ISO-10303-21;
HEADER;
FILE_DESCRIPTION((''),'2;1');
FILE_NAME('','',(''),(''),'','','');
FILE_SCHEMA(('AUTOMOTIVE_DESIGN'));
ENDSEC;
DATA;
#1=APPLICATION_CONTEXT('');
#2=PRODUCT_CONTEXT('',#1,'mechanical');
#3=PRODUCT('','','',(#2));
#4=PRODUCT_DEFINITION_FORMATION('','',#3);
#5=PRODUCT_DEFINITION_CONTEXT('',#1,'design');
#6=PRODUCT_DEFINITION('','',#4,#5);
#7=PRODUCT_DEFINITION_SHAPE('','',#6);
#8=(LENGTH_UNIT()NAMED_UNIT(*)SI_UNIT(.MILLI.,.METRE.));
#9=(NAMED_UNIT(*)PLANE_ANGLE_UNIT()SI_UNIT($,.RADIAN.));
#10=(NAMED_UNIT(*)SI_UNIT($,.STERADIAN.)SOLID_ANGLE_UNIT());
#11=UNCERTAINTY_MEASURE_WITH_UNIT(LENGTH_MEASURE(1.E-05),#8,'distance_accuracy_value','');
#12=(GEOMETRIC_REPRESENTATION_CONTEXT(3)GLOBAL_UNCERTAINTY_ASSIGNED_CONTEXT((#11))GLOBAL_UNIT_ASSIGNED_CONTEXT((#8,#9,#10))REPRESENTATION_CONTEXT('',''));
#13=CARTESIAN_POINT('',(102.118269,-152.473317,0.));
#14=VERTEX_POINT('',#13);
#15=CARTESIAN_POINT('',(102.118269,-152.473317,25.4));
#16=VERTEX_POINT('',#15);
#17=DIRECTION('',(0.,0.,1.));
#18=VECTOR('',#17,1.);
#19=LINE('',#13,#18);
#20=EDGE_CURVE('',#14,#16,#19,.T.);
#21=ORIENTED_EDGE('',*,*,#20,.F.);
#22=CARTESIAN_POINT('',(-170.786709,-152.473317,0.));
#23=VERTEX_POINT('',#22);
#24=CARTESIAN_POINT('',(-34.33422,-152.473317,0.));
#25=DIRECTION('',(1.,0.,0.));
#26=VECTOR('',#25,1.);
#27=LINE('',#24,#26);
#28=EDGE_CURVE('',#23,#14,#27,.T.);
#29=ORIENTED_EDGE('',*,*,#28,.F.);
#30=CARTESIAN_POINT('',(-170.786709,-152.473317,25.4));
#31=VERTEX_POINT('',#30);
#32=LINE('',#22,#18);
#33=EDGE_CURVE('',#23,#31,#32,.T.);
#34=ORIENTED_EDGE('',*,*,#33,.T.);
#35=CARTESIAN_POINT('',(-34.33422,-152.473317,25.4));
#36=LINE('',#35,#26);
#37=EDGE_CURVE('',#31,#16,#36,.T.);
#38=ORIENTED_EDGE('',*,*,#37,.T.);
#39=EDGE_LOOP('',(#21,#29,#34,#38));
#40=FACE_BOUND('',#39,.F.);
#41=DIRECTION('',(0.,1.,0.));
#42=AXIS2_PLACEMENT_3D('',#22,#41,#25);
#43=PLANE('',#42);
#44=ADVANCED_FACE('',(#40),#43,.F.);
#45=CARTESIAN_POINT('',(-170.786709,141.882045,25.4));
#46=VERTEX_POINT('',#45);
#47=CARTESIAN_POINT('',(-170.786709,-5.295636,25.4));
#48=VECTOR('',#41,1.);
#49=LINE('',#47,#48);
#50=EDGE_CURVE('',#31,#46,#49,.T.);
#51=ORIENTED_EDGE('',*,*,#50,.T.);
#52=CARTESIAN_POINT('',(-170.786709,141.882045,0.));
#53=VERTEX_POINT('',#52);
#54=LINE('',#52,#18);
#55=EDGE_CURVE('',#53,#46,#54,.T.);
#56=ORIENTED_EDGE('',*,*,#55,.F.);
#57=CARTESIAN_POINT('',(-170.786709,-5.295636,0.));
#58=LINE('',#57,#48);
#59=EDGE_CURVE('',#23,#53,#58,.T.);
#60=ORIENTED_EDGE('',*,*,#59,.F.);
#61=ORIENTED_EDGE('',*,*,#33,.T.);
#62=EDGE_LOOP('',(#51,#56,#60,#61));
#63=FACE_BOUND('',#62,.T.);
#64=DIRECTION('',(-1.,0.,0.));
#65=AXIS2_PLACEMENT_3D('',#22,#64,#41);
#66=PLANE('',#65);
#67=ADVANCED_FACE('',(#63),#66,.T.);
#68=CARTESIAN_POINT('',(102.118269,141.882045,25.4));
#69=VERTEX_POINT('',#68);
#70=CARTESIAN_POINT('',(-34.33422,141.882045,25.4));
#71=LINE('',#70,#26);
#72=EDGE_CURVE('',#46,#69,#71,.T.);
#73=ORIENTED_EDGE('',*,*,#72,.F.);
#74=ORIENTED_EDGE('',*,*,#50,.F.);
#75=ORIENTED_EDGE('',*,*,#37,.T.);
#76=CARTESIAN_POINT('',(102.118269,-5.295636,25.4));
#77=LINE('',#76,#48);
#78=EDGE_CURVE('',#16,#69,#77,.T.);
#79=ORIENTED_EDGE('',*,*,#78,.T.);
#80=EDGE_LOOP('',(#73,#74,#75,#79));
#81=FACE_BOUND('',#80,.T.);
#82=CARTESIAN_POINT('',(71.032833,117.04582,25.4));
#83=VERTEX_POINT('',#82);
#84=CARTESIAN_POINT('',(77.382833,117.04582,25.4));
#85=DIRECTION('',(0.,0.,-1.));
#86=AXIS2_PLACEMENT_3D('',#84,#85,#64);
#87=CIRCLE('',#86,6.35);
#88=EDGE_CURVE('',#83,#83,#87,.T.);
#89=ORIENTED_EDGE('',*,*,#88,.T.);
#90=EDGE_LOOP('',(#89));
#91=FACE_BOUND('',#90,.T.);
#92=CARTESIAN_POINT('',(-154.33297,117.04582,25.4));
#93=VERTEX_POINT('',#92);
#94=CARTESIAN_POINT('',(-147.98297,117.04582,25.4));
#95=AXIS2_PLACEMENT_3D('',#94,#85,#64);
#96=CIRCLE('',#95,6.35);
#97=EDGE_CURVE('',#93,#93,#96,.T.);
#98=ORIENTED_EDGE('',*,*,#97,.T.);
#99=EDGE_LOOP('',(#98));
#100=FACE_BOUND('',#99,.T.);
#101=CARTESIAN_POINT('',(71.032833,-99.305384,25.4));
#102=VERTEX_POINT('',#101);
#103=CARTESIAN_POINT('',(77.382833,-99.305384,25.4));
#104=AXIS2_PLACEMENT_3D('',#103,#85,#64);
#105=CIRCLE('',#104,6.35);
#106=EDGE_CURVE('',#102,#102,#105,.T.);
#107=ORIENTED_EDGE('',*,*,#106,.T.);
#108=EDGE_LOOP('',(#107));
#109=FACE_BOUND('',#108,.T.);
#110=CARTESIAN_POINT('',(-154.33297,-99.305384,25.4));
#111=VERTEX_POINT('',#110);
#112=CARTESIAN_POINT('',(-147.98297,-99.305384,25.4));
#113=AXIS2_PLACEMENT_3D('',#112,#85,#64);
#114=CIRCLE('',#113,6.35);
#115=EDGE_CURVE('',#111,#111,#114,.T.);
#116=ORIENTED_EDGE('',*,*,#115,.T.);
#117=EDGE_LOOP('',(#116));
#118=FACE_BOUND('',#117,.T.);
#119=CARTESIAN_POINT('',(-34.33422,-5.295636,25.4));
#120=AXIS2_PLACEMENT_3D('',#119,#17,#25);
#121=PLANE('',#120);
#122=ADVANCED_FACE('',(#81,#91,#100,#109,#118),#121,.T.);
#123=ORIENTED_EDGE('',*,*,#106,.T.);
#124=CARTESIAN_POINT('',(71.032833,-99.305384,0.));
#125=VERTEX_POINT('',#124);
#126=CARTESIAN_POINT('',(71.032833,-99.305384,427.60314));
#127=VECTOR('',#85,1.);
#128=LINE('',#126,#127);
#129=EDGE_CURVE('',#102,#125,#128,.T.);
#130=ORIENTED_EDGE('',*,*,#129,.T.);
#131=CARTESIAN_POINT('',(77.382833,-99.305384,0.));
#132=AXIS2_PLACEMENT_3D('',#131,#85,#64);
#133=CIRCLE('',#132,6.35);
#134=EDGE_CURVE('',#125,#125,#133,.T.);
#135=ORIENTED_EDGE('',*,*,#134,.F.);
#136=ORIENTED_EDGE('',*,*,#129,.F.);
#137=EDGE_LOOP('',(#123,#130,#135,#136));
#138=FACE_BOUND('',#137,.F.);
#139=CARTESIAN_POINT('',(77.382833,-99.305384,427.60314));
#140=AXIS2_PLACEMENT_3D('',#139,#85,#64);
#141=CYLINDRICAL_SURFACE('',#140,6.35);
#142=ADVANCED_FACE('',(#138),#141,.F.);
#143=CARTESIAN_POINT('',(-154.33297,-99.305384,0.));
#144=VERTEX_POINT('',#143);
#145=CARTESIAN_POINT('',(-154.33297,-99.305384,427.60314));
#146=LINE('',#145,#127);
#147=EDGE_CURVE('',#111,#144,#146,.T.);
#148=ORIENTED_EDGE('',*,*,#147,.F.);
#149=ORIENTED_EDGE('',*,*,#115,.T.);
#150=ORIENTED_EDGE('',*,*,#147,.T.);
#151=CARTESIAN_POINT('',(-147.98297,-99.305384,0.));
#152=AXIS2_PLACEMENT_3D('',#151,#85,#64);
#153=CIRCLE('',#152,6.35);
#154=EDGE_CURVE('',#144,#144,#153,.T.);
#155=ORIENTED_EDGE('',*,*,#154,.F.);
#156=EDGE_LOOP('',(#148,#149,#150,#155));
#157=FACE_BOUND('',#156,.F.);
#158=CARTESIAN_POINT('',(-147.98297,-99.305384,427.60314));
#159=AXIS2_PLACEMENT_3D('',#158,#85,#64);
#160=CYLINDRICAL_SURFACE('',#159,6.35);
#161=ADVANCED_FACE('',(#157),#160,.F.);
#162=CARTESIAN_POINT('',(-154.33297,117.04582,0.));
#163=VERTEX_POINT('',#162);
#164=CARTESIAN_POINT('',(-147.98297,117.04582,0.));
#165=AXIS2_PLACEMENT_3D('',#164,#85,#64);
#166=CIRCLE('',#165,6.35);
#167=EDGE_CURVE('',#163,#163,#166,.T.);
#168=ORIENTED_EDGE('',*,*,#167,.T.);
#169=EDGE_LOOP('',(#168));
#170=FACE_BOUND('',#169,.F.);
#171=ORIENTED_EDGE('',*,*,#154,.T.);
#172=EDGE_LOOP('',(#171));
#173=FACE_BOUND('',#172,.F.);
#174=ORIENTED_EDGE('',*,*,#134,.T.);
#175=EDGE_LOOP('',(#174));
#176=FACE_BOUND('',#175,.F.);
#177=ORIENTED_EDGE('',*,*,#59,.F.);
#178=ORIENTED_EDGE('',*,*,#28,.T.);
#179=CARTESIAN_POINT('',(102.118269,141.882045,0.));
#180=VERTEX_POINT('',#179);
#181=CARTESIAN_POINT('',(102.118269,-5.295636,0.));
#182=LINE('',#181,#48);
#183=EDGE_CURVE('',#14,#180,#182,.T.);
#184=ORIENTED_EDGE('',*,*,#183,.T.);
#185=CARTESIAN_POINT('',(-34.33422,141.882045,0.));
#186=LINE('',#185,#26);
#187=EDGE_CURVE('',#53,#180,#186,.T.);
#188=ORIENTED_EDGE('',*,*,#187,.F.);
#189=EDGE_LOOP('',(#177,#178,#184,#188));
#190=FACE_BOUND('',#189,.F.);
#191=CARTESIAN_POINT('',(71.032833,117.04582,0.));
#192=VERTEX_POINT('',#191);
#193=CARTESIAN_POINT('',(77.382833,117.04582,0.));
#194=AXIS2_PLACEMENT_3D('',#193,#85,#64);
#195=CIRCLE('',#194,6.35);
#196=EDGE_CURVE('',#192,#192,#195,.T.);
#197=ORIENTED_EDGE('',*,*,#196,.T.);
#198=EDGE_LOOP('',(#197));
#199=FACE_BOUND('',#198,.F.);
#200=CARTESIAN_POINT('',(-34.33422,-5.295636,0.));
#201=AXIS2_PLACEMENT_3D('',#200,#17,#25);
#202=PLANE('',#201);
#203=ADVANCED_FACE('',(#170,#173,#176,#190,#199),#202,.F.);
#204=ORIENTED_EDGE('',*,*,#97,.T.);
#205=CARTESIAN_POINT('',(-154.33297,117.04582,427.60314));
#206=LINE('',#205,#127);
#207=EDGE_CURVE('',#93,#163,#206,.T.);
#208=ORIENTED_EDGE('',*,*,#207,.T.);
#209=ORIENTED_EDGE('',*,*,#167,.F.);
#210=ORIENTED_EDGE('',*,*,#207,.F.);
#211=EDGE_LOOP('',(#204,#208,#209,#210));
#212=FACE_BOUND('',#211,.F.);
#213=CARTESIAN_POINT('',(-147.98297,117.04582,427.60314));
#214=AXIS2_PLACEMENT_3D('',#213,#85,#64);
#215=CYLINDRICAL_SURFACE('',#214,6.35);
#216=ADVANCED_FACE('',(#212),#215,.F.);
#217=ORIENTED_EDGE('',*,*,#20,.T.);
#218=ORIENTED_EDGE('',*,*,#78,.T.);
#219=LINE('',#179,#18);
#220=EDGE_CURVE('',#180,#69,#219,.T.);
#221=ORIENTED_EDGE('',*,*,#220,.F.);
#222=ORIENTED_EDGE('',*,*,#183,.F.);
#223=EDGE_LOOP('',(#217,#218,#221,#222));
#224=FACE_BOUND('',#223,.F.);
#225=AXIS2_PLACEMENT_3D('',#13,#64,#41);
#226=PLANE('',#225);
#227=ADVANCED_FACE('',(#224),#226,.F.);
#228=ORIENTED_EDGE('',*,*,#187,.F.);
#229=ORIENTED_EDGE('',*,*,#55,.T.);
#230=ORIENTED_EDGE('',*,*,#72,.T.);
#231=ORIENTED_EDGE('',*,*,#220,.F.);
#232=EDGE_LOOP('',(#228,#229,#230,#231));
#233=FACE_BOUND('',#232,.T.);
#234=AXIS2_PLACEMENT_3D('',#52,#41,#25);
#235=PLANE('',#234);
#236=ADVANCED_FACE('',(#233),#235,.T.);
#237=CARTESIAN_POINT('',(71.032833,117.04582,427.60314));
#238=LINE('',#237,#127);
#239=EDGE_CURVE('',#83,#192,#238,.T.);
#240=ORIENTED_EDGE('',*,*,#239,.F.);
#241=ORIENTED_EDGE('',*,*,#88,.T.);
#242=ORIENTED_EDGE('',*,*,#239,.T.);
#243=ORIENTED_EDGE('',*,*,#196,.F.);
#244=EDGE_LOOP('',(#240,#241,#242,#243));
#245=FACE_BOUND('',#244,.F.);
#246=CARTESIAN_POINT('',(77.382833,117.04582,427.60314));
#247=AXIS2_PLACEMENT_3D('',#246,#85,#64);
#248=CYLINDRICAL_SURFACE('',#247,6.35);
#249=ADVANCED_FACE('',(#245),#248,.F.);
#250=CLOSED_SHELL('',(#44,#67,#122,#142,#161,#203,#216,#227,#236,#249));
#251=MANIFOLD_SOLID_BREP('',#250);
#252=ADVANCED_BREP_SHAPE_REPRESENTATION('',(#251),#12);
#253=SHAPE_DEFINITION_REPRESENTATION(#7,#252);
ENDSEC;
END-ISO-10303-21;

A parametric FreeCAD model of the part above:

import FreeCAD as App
import Part
import Sketcher
from FreeCAD import Vector
Q = App.Units.Quantity

doc = App.newDocument("Part")
params = doc.addObject("Spreadsheet::Sheet", "Params")
for row, (alias, value) in enumerate([
    ("pad1_length", "1 in"),
    ("sketch2_diameter", "0.5 in"),
    ("hole_diameter", "0.5 in"),
], start=1):
    params.set(f"A{row}", alias)
    params.set(f"B{row}", "=" + value)
    params.setAlias(f"B{row}", alias)

body = doc.addObject("PartDesign::Body", "Body")

sketch1 = doc.addObject("Sketcher::SketchObject", "Sketch")
body.addObject(sketch1)
sketch1.AttachmentSupport = (doc.XY_Plane, [""])
sketch1.MapMode = "FlatFace"
sketch1.addGeometry(Part.LineSegment(Vector(-171, 142, 0), Vector(-171, -152, 0)), False)
sketch1.addGeometry(Part.LineSegment(Vector(-171, -152, 0), Vector(102, -152, 0)), False)
sketch1.addGeometry(Part.LineSegment(Vector(102, -152, 0), Vector(102, 142, 0)), False)
sketch1.addGeometry(Part.LineSegment(Vector(102, 142, 0), Vector(-171, 142, 0)), False)
sketch1.addConstraint(Sketcher.Constraint("Coincident", 0, 2, 1, 1))
sketch1.addConstraint(Sketcher.Constraint("Coincident", 1, 2, 2, 1))
sketch1.addConstraint(Sketcher.Constraint("Coincident", 2, 2, 3, 1))
sketch1.addConstraint(Sketcher.Constraint("Coincident", 3, 2, 0, 1))
sketch1.addConstraint(Sketcher.Constraint("Vertical", 0))
sketch1.addConstraint(Sketcher.Constraint("Horizontal", 1))
sketch1.addConstraint(Sketcher.Constraint("Vertical", 2))
sketch1.addConstraint(Sketcher.Constraint("Horizontal", 3))
sketch1.addConstraint(Sketcher.Constraint("DistanceX", 1, 1, 1, 2, Q("272.904978 mm")))
sketch1.addConstraint(Sketcher.Constraint("DistanceY", 0, 2, 0, 1, Q("294.355361 mm")))
sketch1.addConstraint(Sketcher.Constraint("DistanceX", 0, 2, -1, 1, Q("170.786709 mm")))
sketch1.addConstraint(Sketcher.Constraint("DistanceY", 0, 2, -1, 1, Q("152.473317 mm")))
pad1 = doc.addObject("PartDesign::Pad", "Pad")
body.addObject(pad1)
pad1.Profile = sketch1
pad1.setExpression("Length", "Params.pad1_length")

sketch2 = doc.addObject("Sketcher::SketchObject", "Sketch001")
body.addObject(sketch2)
sketch2.AttachmentSupport = (doc.XY_Plane, [""])
sketch2.MapMode = "FlatFace"
sketch2.AttachmentOffset = App.Placement(Vector(0, 0, 1 * 25.4), App.Rotation())
sketch2.addGeometry(Part.Circle(Vector(-148, 117, 0), Vector(0, 0, 1), 6), False)
sketch2.addGeometry(Part.Circle(Vector(77, 117, 0), Vector(0, 0, 1), 6), False)
sketch2.addGeometry(Part.Circle(Vector(-148, -99, 0), Vector(0, 0, 1), 6), False)
sketch2.addGeometry(Part.Circle(Vector(77, -99, 0), Vector(0, 0, 1), 6), False)
sketch2.addConstraint(Sketcher.Constraint("Equal", 0, 1))
sketch2.addConstraint(Sketcher.Constraint("Equal", 1, 2))
sketch2.addConstraint(Sketcher.Constraint("Equal", 2, 3))
sketch2.addConstraint(Sketcher.Constraint("Horizontal", 0, 3, 1, 3))
sketch2.addConstraint(Sketcher.Constraint("Horizontal", 2, 3, 3, 3))
sketch2.addConstraint(Sketcher.Constraint("Vertical", 0, 3, 2, 3))
sketch2.addConstraint(Sketcher.Constraint("Vertical", 1, 3, 3, 3))
sketch2.addConstraint(Sketcher.Constraint("Diameter", 0, Q("0.5 in")))
sketch2.addConstraint(Sketcher.Constraint("DistanceX", 0, 3, -1, 1, Q("147.98297 mm")))
sketch2.addConstraint(Sketcher.Constraint("DistanceY", -1, 1, 0, 3, Q("117.04582 mm")))
sketch2.addConstraint(Sketcher.Constraint("DistanceX", -1, 1, 1, 3, Q("77.382833 mm")))
sketch2.addConstraint(Sketcher.Constraint("DistanceY", 2, 3, -1, 1, Q("99.305384 mm")))
sketch2.setExpression("Constraints[7]", "Params.sketch2_diameter")
doc.recompute()
hole = doc.addObject("PartDesign::Hole", "Hole")
body.addObject(hole)
hole.Profile = sketch2
hole.ThreadType = "None"
hole.setExpression("Diameter", "Params.hole_diameter")
hole.DepthType = "ThroughAll"

doc.recompute()
